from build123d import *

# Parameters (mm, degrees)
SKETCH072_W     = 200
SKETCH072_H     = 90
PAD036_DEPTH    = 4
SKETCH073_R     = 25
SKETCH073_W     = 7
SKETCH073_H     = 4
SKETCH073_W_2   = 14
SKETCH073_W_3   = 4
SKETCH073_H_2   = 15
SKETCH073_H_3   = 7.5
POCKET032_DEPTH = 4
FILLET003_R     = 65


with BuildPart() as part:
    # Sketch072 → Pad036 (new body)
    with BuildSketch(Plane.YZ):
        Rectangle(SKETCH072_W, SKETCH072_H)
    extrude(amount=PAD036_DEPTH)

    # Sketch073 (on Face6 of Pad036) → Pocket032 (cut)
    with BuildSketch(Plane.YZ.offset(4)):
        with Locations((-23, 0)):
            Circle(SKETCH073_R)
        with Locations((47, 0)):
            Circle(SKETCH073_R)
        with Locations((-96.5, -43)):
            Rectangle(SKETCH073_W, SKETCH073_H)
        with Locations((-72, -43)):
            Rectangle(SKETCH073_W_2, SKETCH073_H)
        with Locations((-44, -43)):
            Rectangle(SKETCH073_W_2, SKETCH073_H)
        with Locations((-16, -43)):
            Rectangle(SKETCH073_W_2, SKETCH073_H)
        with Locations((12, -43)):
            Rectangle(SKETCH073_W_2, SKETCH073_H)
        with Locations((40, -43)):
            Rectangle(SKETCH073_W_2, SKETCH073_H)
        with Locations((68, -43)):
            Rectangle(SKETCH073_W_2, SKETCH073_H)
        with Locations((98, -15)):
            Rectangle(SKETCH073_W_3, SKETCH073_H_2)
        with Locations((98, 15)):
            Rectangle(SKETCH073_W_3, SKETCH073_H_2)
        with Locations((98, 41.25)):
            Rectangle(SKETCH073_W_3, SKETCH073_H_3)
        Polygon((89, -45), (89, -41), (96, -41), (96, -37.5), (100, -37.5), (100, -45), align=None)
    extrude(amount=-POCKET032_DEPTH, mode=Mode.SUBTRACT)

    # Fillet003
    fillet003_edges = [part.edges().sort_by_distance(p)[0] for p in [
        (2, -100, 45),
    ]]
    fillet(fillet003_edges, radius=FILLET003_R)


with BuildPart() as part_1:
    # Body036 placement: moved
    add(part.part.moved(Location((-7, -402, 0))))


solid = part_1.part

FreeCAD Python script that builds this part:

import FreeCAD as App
import Part
import Sketcher
from FreeCAD import Vector
Q = App.Units.Quantity


def edges_at(feature, points):
    """Names of the edges that pass closest to the given points."""
    edges = feature.Shape.Edges
    near = lambda p: min(range(len(edges)), key=lambda i: edges[i].distToShape(Part.Vertex(*p))[0])
    return sorted({f"Edge{near(p) + 1}" for p in points})

doc = App.newDocument("Part")
body = doc.addObject("PartDesign::Body", "Body")

sketch1 = body.newObject("Sketcher::SketchObject", "Sketch")
sketch1.AttachmentSupport = (doc.getObject("YZ_Plane"), [""])
sketch1.MapMode = "FlatFace"
sketch1.addGeometry([
    Part.LineSegment(Vector(-100, 45, 0), Vector(-100, -45, 0)),
    Part.LineSegment(Vector(-100, -45, 0), Vector(100, -45, 0)),
    Part.LineSegment(Vector(100, -45, 0), Vector(100, 45, 0)),
    Part.LineSegment(Vector(100, 45, 0), Vector(-100, 45, 0)),
], False)
sketch1.addConstraint([
    Sketcher.Constraint("Coincident", 0, 2, 1, 1),
    Sketcher.Constraint("Coincident", 1, 2, 2, 1),
    Sketcher.Constraint("Coincident", 2, 2, 3, 1),
    Sketcher.Constraint("Coincident", 3, 2, 0, 1),
    Sketcher.Constraint("Vertical", 0),
    Sketcher.Constraint("Horizontal", 1),
    Sketcher.Constraint("Vertical", 2),
    Sketcher.Constraint("Horizontal", 3),
    Sketcher.Constraint("Symmetric", 0, 2, 2, 2, -1, 1),
    Sketcher.Constraint("DistanceX", 1, 1, 1, 2, Q("200 mm")),
    Sketcher.Constraint("DistanceY", 0, 2, 0, 1, Q("90 mm")),
])
pad1 = body.newObject("PartDesign::Pad", "Pad")
pad1.Profile = sketch1
pad1.Length = 4

sketch2 = body.newObject("Sketcher::SketchObject", "Sketch001")
sketch2.AttachmentSupport = (doc.getObject("YZ_Plane"), [""])
sketch2.MapMode = "FlatFace"
sketch2.AttachmentOffset = App.Placement(Vector(0, 0, 4), App.Rotation())
sketch2.addGeometry([
    Part.Circle(Vector(-23, 0, 0), Vector(0, 0, 1), 25),
    Part.Circle(Vector(47, 0, 0), Vector(0, 0, 1), 25),
    Part.LineSegment(Vector(-100, -41, 0), Vector(-100, -45, 0)),
    Part.LineSegment(Vector(-100, -45, 0), Vector(-93, -45, 0)),
    Part.LineSegment(Vector(-93, -45, 0), Vector(-93, -41, 0)),
    Part.LineSegment(Vector(-93, -41, 0), Vector(-100, -41, 0)),
    Part.LineSegment(Vector(-79, -41, 0), Vector(-79, -45, 0)),
    Part.LineSegment(Vector(-79, -45, 0), Vector(-65, -45, 0)),
    Part.LineSegment(Vector(-65, -45, 0), Vector(-65, -41, 0)),
    Part.LineSegment(Vector(-65, -41, 0), Vector(-79, -41, 0)),
    Part.LineSegment(Vector(-51, -41, 0), Vector(-51, -45, 0)),
    Part.LineSegment(Vector(-51, -45, 0), Vector(-37, -45, 0)),
    Part.LineSegment(Vector(-37, -45, 0), Vector(-37, -41, 0)),
    Part.LineSegment(Vector(-37, -41, 0), Vector(-51, -41, 0)),
    Part.LineSegment(Vector(-23, -41, 0), Vector(-23, -45, 0)),
    Part.LineSegment(Vector(-23, -45, 0), Vector(-9, -45, 0)),
    Part.LineSegment(Vector(-9, -45, 0), Vector(-9, -41, 0)),
    Part.LineSegment(Vector(-9, -41, 0), Vector(-23, -41, 0)),
    Part.LineSegment(Vector(5, -41, 0), Vector(5, -45, 0)),
    Part.LineSegment(Vector(5, -45, 0), Vector(19, -45, 0)),
    Part.LineSegment(Vector(19, -45, 0), Vector(19, -41, 0)),
    Part.LineSegment(Vector(19, -41, 0), Vector(5, -41, 0)),
    Part.LineSegment(Vector(33, -41, 0), Vector(33, -45, 0)),
    Part.LineSegment(Vector(33, -45, 0), Vector(47, -45, 0)),
    Part.LineSegment(Vector(47, -45, 0), Vector(47, -41, 0)),
    Part.LineSegment(Vector(47, -41, 0), Vector(33, -41, 0)),
    Part.LineSegment(Vector(61, -41, 0), Vector(61, -45, 0)),
    Part.LineSegment(Vector(61, -45, 0), Vector(75, -45, 0)),
    Part.LineSegment(Vector(75, -45, 0), Vector(75, -41, 0)),
    Part.LineSegment(Vector(75, -41, 0), Vector(61, -41, 0)),
    Part.LineSegment(Vector(96, -7.5, 0), Vector(96, -22.5, 0)),
    Part.LineSegment(Vector(96, -22.5, 0), Vector(100, -22.5, 0)),
    Part.LineSegment(Vector(100, -22.5, 0), Vector(100, -7.5, 0)),
    Part.LineSegment(Vector(100, -7.5, 0), Vector(96, -7.5, 0)),
    Part.LineSegment(Vector(96, 22.5, 0), Vector(96, 7.5, 0)),
    Part.LineSegment(Vector(96, 7.5, 0), Vector(100, 7.5, 0)),
    Part.LineSegment(Vector(100, 7.5, 0), Vector(100, 22.5, 0)),
    Part.LineSegment(Vector(100, 22.5, 0), Vector(96, 22.5, 0)),
    Part.LineSegment(Vector(96, 45, 0), Vector(96, 37.5, 0)),
    Part.LineSegment(Vector(96, 37.5, 0), Vector(100, 37.5, 0)),
    Part.LineSegment(Vector(100, 37.5, 0), Vector(100, 45, 0)),
    Part.LineSegment(Vector(100, 45, 0), Vector(96, 45, 0)),
    Part.LineSegment(Vector(89, -41, 0), Vector(89, -45, 0)),
    Part.LineSegment(Vector(89, -45, 0), Vector(100, -45, 0)),
    Part.LineSegment(Vector(100, -45, 0), Vector(100, -37.5, 0)),
    Part.LineSegment(Vector(100, -37.5, 0), Vector(96, -37.5, 0)),
    Part.LineSegment(Vector(96, -37.5, 0), Vector(96, -41, 0)),
    Part.LineSegment(Vector(96, -41, 0), Vector(89, -41, 0)),
], False)
sketch2.addConstraint([
    Sketcher.Constraint("Coincident", 2, 2, 3, 1),
    Sketcher.Constraint("Coincident", 3, 2, 4, 1),
    Sketcher.Constraint("Coincident", 4, 2, 5, 1),
    Sketcher.Constraint("Coincident", 5, 2, 2, 1),
    Sketcher.Constraint("Coincident", 6, 2, 7, 1),
    Sketcher.Constraint("Coincident", 7, 2, 8, 1),
    Sketcher.Constraint("Coincident", 8, 2, 9, 1),
    Sketcher.Constraint("Coincident", 9, 2, 6, 1),
    Sketcher.Constraint("Coincident", 10, 2, 11, 1),
    Sketcher.Constraint("Coincident", 11, 2, 12, 1),
    Sketcher.Constraint("Coincident", 12, 2, 13, 1),
    Sketcher.Constraint("Coincident", 13, 2, 10, 1),
    Sketcher.Constraint("Coincident", 14, 2, 15, 1),
    Sketcher.Constraint("Coincident", 15, 2, 16, 1),
    Sketcher.Constraint("Coincident", 16, 2, 17, 1),
    Sketcher.Constraint("Coincident", 17, 2, 14, 1),
    Sketcher.Constraint("Coincident", 18, 2, 19, 1),
    Sketcher.Constraint("Coincident", 19, 2, 20, 1),
    Sketcher.Constraint("Coincident", 20, 2, 21, 1),
    Sketcher.Constraint("Coincident", 21, 2, 18, 1),
    Sketcher.Constraint("Coincident", 22, 2, 23, 1),
    Sketcher.Constraint("Coincident", 23, 2, 24, 1),
    Sketcher.Constraint("Coincident", 24, 2, 25, 1),
    Sketcher.Constraint("Coincident", 25, 2, 22, 1),
    Sketcher.Constraint("Coincident", 26, 2, 27, 1),
    Sketcher.Constraint("Coincident", 27, 2, 28, 1),
    Sketcher.Constraint("Coincident", 28, 2, 29, 1),
    Sketcher.Constraint("Coincident", 29, 2, 26, 1),
    Sketcher.Constraint("Coincident", 30, 2, 31, 1),
    Sketcher.Constraint("Coincident", 31, 2, 32, 1),
    Sketcher.Constraint("Coincident", 32, 2, 33, 1),
    Sketcher.Constraint("Coincident", 33, 2, 30, 1),
    Sketcher.Constraint("Coincident", 34, 2, 35, 1),
    Sketcher.Constraint("Coincident", 35, 2, 36, 1),
    Sketcher.Constraint("Coincident", 36, 2, 37, 1),
    Sketcher.Constraint("Coincident", 37, 2, 34, 1),
    Sketcher.Constraint("Coincident", 38, 2, 39, 1),
    Sketcher.Constraint("Coincident", 39, 2, 40, 1),
    Sketcher.Constraint("Coincident", 40, 2, 41, 1),
    Sketcher.Constraint("Coincident", 41, 2, 38, 1),
    Sketcher.Constraint("Coincident", 42, 2, 43, 1),
    Sketcher.Constraint("Coincident", 43, 2, 44, 1),
    Sketcher.Constraint("Coincident", 44, 2, 45, 1),
    Sketcher.Constraint("Coincident", 45, 2, 46, 1),
    Sketcher.Constraint("Coincident", 46, 2, 47, 1),
    Sketcher.Constraint("Coincident", 47, 2, 42, 1),
    Sketcher.Constraint("Vertical", 2),
    Sketcher.Constraint("Horizontal", 3),
    Sketcher.Constraint("Vertical", 4),
    Sketcher.Constraint("Horizontal", 5),
    Sketcher.Constraint("Vertical", 6),
    Sketcher.Constraint("Horizontal", 7),
    Sketcher.Constraint("Vertical", 8),
    Sketcher.Constraint("Horizontal", 9),
    Sketcher.Constraint("Vertical", 10),
    Sketcher.Constraint("Horizontal", 11),
    Sketcher.Constraint("Vertical", 12),
    Sketcher.Constraint("Horizontal", 13),
    Sketcher.Constraint("Vertical", 14),
    Sketcher.Constraint("Horizontal", 15),
    Sketcher.Constraint("Vertical", 16),
    Sketcher.Constraint("Horizontal", 17),
    Sketcher.Constraint("Vertical", 18),
    Sketcher.Constraint("Horizontal", 19),
    Sketcher.Constraint("Vertical", 20),
    Sketcher.Constraint("Horizontal", 21),
    Sketcher.Constraint("Vertical", 22),
    Sketcher.Constraint("Horizontal", 23),
    Sketcher.Constraint("Vertical", 24),
    Sketcher.Constraint("Horizontal", 25),
    Sketcher.Constraint("Vertical", 26),
    Sketcher.Constraint("Horizontal", 27),
    Sketcher.Constraint("Vertical", 28),
    Sketcher.Constraint("Horizontal", 29),
    Sketcher.Constraint("Vertical", 30),
    Sketcher.Constraint("Horizontal", 31),
    Sketcher.Constraint("Vertical", 32),
    Sketcher.Constraint("Horizontal", 33),
    Sketcher.Constraint("Vertical", 34),
    Sketcher.Constraint("Horizontal", 35),
    Sketcher.Constraint("Vertical", 36),
    Sketcher.Constraint("Horizontal", 37),
    Sketcher.Constraint("Vertical", 38),
    Sketcher.Constraint("Horizontal", 39),
    Sketcher.Constraint("Vertical", 40),
    Sketcher.Constraint("Horizontal", 41),
    Sketcher.Constraint("Vertical", 42),
    Sketcher.Constraint("Horizontal", 43),
    Sketcher.Constraint("Vertical", 44),
    Sketcher.Constraint("Horizontal", 45),
    Sketcher.Constraint("Vertical", 46),
    Sketcher.Constraint("Horizontal", 47),
    Sketcher.Constraint("Equal", 0, 1),
    Sketcher.Constraint("Symmetric", 2, 2, 40, 2, -1, 1),
    Sketcher.Constraint("Symmetric", 2, 2, 43, 2, -2),
    Sketcher.Constraint("Symmetric", 33, 2, 34, 2, -1),
    Sketcher.Constraint("Symmetric", 31, 2, 36, 2, -1),
    Sketcher.Constraint("Symmetric", 38, 2, 45, 2, -1),
    Sketcher.Constraint("PointOnObject", 0, 3, -1),
    Sketcher.Constraint("PointOnObject", 1, 3, -1),
    Sketcher.Constraint("Horizontal", 3, 2, 6, 2),
    Sketcher.Constraint("Horizontal", 5, 2, 8, 2),
    Sketcher.Constraint("Horizontal", 7, 2, 10, 2),
    Sketcher.Constraint("Horizontal", 9, 2, 12, 2),
    Sketcher.Constraint("Horizontal", 11, 2, 14, 2),
    Sketcher.Constraint("Horizontal", 13, 2, 16, 2),
    Sketcher.Constraint("Horizontal", 15, 2, 18, 2),
    Sketcher.Constraint("Horizontal", 17, 2, 20, 2),
    Sketcher.Constraint("Horizontal", 19, 2, 22, 2),
    Sketcher.Constraint("Horizontal", 21, 2, 24, 2),
    Sketcher.Constraint("Horizontal", 23, 2, 26, 2),
    Sketcher.Constraint("Horizontal", 25, 2, 28, 2),
    Sketcher.Constraint("Horizontal", 29, 2, 46, 2),
    Sketcher.Constraint("Vertical", 0, 3, 14, 2),
    Sketcher.Constraint("Vertical", 1, 3, 23, 2),
    Sketcher.Constraint("Vertical", 37, 2, 38, 2),
    Sketcher.Constraint("Vertical", 36, 2, 39, 2),
    Sketcher.Constraint("Equal", 9, 11),
    Sketcher.Constraint("Equal", 13, 15),
    Sketcher.Constraint("Equal", 17, 19),
    Sketcher.Constraint("Equal", 21, 23),
    Sketcher.Constraint("Equal", 25, 27),
    Sketcher.Constraint("Equal", 5, 47),
    Sketcher.Constraint("Equal", 45, 2),
    Sketcher.Constraint("Diameter", 0, Q("50 mm")),
    Sketcher.Constraint("DistanceX", 3, 1, 3, 2, Q("7 mm")),
    Sketcher.Constraint("DistanceX", 7, 1, 7, 2, Q("14 mm")),
    Sketcher.Constraint("DistanceX", 31, 1, 31, 2, Q("4 mm")),
    Sketcher.Constraint("DistanceY", 30, 2, 30, 1, Q("15 mm")),
    Sketcher.Constraint("DistanceY", 38, 2, 38, 1, Q("7.5 mm")),
    Sketcher.Constraint("DistanceX", 0, 3, -1, 1, Q("23 mm")),
    Sketcher.Constraint("DistanceX", -1, 1, 1, 3, Q("47 mm")),
    Sketcher.Constraint("DistanceX", 2, 2, -1, 1, Q("100 mm")),
    Sketcher.Constraint("DistanceY", 2, 2, -1, 1, Q("45 mm")),
    Sketcher.Constraint("DistanceX", 6, 2, -1, 1, Q("79 mm")),
    Sketcher.Constraint("DistanceX", 10, 2, -1, 1, Q("51 mm")),
    Sketcher.Constraint("DistanceX", -1, 1, 18, 2, Q("5 mm")),
    Sketcher.Constraint("DistanceX", -1, 1, 26, 2, Q("61 mm")),
    Sketcher.Constraint("DistanceY", 33, 2, 34, 2, Q("15 mm")),
])
pocket1 = body.newObject("PartDesign::Pocket", "Pocket")
pocket1.Profile = sketch2
pocket1.Length = 4
doc.recompute()

fillet = body.newObject("PartDesign::Fillet", "Fillet")
fillet.Base = (pocket1, edges_at(pocket1, [(2, -100, 45)]))
fillet.Radius = 65
body2 = doc.addObject("PartDesign::Body", "Body001")
doc.recompute()

body.Placement = App.Placement(Vector(-7, -402, 0), App.Rotation(Vector(0, 0, 1), 0))
boolean = body2.newObject("PartDesign::Boolean", "Boolean")
boolean.Type = "Fuse"
boolean.addObjects([body])

doc.recompute()
